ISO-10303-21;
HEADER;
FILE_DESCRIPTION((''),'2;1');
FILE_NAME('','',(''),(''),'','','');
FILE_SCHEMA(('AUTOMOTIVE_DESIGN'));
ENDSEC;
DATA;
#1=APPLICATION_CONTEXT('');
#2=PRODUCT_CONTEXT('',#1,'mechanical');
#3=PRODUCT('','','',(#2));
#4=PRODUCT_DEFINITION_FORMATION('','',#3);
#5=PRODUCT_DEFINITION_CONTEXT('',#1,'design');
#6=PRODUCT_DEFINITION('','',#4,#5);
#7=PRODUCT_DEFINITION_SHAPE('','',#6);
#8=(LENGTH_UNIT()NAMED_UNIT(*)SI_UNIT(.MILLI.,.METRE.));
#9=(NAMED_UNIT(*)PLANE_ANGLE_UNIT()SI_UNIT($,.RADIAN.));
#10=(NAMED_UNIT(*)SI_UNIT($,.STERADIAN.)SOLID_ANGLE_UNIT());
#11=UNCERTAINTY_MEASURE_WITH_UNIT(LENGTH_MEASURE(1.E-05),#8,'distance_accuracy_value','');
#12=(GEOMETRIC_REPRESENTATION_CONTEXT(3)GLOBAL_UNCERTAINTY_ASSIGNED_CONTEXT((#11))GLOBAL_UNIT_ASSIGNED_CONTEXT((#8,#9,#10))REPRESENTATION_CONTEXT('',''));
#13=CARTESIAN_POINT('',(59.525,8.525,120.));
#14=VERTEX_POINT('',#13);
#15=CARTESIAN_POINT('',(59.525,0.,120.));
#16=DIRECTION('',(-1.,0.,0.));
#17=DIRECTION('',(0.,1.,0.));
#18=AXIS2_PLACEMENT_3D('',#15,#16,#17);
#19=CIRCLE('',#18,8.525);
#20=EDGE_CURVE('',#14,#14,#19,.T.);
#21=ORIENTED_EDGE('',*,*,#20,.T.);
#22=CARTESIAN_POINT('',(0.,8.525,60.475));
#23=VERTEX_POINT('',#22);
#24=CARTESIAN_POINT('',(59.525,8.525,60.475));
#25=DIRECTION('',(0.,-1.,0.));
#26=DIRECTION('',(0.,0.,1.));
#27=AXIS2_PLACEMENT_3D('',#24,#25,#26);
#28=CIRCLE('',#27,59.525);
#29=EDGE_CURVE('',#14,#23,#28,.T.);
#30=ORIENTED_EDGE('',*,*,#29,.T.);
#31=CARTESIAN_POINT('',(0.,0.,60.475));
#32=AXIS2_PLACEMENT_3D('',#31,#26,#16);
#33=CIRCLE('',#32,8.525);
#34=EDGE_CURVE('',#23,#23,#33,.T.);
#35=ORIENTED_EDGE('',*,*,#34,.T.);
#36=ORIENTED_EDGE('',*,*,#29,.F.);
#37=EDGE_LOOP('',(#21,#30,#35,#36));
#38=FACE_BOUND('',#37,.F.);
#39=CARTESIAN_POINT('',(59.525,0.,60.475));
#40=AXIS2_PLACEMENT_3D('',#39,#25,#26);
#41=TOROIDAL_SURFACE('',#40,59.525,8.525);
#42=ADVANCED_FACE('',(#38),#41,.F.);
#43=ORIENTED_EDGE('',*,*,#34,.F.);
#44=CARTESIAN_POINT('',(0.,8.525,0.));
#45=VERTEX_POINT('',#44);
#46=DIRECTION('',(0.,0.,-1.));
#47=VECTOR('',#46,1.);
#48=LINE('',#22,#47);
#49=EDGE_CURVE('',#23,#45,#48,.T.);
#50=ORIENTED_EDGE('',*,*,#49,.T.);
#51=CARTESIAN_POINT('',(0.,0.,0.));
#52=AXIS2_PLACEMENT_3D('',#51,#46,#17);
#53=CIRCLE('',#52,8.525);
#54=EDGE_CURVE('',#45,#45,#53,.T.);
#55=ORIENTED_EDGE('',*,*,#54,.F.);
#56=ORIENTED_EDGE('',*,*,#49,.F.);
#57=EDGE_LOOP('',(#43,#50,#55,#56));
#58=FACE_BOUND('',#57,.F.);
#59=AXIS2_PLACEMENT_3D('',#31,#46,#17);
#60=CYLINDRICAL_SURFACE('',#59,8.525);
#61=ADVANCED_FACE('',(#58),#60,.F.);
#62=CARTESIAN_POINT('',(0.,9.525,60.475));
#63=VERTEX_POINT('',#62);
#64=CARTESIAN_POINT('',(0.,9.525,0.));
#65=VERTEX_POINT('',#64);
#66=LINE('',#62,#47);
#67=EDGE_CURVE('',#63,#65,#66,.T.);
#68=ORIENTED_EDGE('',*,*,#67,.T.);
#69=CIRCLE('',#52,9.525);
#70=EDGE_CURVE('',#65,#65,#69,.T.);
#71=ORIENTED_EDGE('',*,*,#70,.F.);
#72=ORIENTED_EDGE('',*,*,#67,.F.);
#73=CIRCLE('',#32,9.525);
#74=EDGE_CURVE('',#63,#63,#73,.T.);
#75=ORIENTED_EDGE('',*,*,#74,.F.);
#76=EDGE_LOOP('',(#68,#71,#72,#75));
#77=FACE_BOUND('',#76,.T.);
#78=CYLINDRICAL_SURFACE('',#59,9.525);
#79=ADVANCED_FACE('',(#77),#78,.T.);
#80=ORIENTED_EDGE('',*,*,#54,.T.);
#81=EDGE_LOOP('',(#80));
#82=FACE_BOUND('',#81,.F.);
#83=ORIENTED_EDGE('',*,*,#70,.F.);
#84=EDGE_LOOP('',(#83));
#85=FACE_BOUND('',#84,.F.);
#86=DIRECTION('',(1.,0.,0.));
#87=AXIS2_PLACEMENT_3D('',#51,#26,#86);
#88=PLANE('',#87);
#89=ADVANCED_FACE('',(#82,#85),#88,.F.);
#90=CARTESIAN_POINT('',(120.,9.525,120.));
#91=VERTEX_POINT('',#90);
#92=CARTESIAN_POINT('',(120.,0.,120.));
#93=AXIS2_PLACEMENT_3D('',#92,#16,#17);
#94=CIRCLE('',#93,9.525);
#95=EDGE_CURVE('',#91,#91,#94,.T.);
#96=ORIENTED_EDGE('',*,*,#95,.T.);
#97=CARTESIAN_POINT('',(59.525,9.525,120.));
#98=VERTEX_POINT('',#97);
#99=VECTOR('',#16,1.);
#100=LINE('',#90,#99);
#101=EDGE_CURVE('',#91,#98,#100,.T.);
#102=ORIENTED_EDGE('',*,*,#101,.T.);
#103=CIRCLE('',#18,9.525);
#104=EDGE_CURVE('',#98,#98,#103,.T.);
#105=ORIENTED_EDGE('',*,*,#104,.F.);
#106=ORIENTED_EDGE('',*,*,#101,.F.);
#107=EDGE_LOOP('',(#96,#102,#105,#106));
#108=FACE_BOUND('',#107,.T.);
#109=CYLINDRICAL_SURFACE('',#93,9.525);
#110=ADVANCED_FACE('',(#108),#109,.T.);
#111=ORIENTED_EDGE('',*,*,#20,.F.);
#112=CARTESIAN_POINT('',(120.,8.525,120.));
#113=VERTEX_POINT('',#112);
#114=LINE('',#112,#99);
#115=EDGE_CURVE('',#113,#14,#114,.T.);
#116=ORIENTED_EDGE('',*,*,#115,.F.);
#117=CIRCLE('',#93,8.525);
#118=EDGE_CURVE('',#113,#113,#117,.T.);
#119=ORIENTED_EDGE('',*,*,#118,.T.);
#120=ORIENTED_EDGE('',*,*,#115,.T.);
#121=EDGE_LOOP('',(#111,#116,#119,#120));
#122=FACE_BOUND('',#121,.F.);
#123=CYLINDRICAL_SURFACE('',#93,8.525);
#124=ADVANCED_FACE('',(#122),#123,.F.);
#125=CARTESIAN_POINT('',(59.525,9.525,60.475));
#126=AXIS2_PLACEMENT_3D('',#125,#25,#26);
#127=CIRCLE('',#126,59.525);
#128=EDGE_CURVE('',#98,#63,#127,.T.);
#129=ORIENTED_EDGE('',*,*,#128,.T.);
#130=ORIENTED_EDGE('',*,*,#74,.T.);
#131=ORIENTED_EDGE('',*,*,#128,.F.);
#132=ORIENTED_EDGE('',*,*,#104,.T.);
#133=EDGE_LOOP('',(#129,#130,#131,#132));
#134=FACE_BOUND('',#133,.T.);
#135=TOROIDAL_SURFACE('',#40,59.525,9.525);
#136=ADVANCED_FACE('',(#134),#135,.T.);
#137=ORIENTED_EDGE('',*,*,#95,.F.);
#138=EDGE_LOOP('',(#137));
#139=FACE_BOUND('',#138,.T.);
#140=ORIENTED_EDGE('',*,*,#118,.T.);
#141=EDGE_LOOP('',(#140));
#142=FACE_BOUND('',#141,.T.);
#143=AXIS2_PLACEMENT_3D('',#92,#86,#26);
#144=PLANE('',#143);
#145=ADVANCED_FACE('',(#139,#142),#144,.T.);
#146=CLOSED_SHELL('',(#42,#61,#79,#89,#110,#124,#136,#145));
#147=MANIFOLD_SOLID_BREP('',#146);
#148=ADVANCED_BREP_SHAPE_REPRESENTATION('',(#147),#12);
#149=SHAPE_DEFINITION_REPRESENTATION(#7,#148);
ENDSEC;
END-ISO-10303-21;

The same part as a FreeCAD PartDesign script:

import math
import FreeCAD as App
import Part
import Sketcher

V = App.Vector
Q = App.Units.Quantity

doc = App.newDocument("Part")
body = doc.addObject("PartDesign::Body", "Body")

# Sketch on YZ plane
sketch1 = doc.addObject("Sketcher::SketchObject", "Sketch")
body.addObject(sketch1)
sketch1.AttachmentSupport = (doc.YZ_Plane, [""])
sketch1.MapMode = "FlatFace"
sketch1.AttachmentOffset = App.Placement(V(0, 0, 120), App.Rotation())
sketch1.addGeometry([
    Part.Circle(V(0, 120, 0), V(0, 0, 1), 10),
    Part.Circle(V(0, 120, 0), V(0, 0, 1), 9),
], False)
sketch1.addConstraint([
    Sketcher.Constraint("Coincident", 1, 3, 0, 3),
    Sketcher.Constraint("PointOnObject", 0, 3, -2),
    Sketcher.Constraint("Diameter", 0, Q("0.75 in")),
    Sketcher.Constraint("Diameter", 1, Q("17.05 mm")),
    Sketcher.Constraint("DistanceY", -1, 1, 0, 3, Q("120 mm")),
])

# Sketch on XZ plane
sketch2 = doc.addObject("Sketcher::SketchObject", "Sketch001")
body.addObject(sketch2)
sketch2.AttachmentSupport = (doc.XZ_Plane, [""])
sketch2.MapMode = "FlatFace"
sketch2.addGeometry([
    Part.LineSegment(V(120, 120, 0), V(60, 120, 0)),
    Part.ArcOfCircle(Part.Circle(V(60, 60, 0), V(0, 0, 1), 60), math.radians(90), math.radians(180)),
    Part.LineSegment(V(0, 60, 0), V(0, 0, 0)),
], False)
sketch2.addConstraint([
    Sketcher.Constraint("Tangent", 0, 2, 1, 1),
    Sketcher.Constraint("Tangent", 1, 2, 2, 1),
    Sketcher.Constraint("Horizontal", 0),
    Sketcher.Constraint("Vertical", 2),
    Sketcher.Constraint("Coincident", 2, 2, -1, 1),
    Sketcher.Constraint("Equal", 0, 2),
    Sketcher.Constraint("Radius", 1, Q("59.525 mm")),
    Sketcher.Constraint("DistanceX", 0, 2, 0, 1, Q("60.475 mm")),
])
doc.recompute()

additivepipe = doc.addObject("PartDesign::AdditivePipe", "AdditivePipe")
body.addObject(additivepipe)
additivepipe.Profile = sketch1
additivepipe.Spine = (sketch2, ["Edge1", "Edge2", "Edge3"])

doc.recompute()
